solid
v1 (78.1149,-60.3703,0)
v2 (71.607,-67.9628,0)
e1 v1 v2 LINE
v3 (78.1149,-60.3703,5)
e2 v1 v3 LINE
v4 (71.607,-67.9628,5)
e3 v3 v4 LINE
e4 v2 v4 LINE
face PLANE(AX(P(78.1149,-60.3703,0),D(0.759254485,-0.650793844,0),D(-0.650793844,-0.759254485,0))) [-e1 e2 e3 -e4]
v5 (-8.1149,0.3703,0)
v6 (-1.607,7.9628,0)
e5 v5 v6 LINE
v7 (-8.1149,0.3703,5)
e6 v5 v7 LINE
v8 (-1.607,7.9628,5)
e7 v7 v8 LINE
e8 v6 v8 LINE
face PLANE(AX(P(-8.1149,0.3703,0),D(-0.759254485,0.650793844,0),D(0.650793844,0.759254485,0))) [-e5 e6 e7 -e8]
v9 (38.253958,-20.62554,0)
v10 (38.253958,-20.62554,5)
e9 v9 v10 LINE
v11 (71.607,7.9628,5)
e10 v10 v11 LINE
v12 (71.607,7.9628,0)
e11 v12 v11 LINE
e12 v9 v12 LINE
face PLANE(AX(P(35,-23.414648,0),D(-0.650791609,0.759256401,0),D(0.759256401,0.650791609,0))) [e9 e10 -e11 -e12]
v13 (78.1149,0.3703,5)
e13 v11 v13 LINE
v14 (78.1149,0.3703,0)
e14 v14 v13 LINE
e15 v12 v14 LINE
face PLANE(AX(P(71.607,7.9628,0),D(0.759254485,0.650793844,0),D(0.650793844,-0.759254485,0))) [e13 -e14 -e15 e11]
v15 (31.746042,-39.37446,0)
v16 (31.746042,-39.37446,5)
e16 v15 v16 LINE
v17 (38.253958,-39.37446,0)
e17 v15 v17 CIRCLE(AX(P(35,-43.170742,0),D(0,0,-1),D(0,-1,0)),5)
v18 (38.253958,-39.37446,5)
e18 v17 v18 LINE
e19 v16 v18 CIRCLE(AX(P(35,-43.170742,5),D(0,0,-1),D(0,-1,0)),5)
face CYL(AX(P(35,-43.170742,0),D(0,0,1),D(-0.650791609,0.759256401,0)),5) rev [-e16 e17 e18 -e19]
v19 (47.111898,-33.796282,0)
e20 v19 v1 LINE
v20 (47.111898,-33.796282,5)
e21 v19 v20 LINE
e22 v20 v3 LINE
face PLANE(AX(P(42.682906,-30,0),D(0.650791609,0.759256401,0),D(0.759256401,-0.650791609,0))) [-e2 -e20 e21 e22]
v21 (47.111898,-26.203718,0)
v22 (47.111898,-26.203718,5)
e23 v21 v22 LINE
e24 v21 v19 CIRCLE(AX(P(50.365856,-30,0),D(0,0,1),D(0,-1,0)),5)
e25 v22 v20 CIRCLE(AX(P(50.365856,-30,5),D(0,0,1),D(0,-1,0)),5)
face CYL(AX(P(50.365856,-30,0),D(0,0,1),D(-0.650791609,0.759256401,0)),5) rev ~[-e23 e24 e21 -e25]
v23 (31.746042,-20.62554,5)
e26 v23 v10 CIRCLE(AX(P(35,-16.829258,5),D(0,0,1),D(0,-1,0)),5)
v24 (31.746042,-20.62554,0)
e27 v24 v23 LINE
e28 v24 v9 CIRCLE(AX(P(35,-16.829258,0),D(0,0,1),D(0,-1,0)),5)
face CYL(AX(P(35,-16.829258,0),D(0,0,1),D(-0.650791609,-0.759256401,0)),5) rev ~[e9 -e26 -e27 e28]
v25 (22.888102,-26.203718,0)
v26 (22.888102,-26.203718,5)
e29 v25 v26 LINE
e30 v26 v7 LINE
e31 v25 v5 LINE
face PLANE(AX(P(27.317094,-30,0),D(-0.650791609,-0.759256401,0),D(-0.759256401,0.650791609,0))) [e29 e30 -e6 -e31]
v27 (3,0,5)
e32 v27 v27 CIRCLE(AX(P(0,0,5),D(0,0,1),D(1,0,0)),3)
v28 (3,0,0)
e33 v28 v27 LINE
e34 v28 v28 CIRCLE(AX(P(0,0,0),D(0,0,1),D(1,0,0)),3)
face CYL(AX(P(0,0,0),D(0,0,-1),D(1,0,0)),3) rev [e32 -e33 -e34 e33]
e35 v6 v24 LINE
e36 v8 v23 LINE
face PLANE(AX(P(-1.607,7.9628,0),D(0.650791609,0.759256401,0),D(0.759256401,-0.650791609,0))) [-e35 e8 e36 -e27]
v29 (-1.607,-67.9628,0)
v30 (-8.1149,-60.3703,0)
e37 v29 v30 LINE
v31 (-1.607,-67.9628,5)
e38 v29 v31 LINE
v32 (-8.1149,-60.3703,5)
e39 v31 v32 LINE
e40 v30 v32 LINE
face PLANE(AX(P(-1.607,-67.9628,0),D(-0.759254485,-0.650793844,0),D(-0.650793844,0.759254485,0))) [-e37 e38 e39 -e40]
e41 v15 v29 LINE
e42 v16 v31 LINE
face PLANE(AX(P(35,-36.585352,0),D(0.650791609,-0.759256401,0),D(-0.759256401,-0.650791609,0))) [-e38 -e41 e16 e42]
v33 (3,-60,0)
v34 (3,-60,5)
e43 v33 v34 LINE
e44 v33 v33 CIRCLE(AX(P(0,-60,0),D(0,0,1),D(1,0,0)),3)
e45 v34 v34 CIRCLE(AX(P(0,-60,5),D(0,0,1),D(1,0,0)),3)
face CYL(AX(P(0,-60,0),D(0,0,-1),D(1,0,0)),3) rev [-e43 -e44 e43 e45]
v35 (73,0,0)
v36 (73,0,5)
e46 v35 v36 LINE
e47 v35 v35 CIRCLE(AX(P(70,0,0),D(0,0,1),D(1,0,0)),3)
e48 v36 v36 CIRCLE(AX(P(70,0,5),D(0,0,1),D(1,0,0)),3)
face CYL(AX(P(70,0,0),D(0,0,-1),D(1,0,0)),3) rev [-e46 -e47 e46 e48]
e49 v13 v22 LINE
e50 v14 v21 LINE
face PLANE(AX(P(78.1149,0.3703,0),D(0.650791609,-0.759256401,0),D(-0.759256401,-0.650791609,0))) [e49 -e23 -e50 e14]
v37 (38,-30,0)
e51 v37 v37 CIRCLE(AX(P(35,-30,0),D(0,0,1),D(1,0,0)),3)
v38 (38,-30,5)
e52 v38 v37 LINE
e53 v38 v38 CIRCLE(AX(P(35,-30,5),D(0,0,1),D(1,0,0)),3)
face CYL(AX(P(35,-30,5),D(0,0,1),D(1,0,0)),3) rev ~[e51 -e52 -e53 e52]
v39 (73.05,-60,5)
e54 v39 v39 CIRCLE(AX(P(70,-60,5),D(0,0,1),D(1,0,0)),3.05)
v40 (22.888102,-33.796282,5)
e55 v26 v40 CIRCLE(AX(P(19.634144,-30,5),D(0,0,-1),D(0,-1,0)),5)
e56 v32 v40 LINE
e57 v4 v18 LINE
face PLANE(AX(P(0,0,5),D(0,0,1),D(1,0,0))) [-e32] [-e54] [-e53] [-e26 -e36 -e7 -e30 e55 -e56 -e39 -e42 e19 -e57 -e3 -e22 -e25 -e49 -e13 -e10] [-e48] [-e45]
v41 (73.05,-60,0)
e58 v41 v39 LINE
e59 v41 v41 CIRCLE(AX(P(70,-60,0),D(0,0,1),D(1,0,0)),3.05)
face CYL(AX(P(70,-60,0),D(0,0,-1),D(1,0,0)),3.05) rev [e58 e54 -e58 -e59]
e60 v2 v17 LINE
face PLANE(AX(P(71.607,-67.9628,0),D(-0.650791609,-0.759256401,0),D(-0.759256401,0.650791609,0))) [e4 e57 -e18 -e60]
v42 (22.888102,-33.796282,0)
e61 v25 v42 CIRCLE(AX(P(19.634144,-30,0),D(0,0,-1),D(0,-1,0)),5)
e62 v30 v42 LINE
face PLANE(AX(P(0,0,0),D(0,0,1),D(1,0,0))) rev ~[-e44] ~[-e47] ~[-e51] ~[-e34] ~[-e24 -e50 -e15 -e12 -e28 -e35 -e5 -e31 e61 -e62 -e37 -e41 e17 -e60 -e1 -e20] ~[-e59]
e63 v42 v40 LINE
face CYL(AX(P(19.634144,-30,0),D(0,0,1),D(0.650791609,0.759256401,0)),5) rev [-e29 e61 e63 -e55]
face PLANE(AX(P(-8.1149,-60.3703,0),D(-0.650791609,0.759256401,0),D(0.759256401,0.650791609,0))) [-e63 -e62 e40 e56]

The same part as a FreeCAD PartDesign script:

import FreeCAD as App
import Part
import Sketcher

V = App.Vector


def edges_at(feature, points):
    """Names of the edges that pass closest to the given points."""
    edges = feature.Shape.Edges
    near = lambda p: min(range(len(edges)), key=lambda i: edges[i].distToShape(Part.Vertex(*p))[0])
    return sorted({f"Edge{near(p) + 1}" for p in points})


def add_polygon(sketch, points):
    """Adds a closed chain of lines whose ends are joined by coincident constraints."""
    first, n = sketch.GeometryCount, len(points)
    for a, b in zip(points, points[1:] + points[:1]):
        sketch.addGeometry(Part.LineSegment(App.Vector(*a, 0), App.Vector(*b, 0)), False)
    for i in range(n):
        sketch.addConstraint(Sketcher.Constraint("Coincident", first + i, 2, first + (i + 1) % n, 1))

doc = App.newDocument("Part")
body = doc.addObject("PartDesign::Body", "Body")

# Sketch on XY plane
sketch1 = doc.addObject("Sketcher::SketchObject", "Sketch")
body.addObject(sketch1)
sketch1.AttachmentSupport = (doc.XY_Plane, [""])
sketch1.MapMode = "FlatFace"
add_polygon(sketch1, [(35, -23.4), (-1.6, 8), (-8.1, 0.4), (27.3, -30), (-8.1, -60.4), (-1.6, -68), (35, -36.6), (71.6, -68), (78.1, -60.4), (42.7, -30), (78.1, 0.4), (71.6, 8)])  # lines 0-11
sketch1.addGeometry(Part.Circle(V(0, 0, 0), V(0, 0, 1), 3), False)  # 12
sketch1.addGeometry(Part.Circle(V(70, 0, 0), V(0, 0, 1), 3), False)  # 13
sketch1.addGeometry(Part.Circle(V(70, -60, 0), V(0, 0, 1), 3), False)  # 14
sketch1.addGeometry(Part.Circle(V(0, -60, 0), V(0, 0, 1), 3), False)  # 15
sketch1.addConstraint([
    Sketcher.Constraint("Coincident", 12, 3, -1, 1),
    Sketcher.Constraint("Equal", 12, 13),
    Sketcher.Constraint("Equal", 13, 15),
    Sketcher.Constraint("PointOnObject", 13, 3, -1),
    Sketcher.Constraint("PointOnObject", 15, 3, -2),
    Sketcher.Constraint("Perpendicular", 0, 1),
    Sketcher.Constraint("Perpendicular", 1, 2),
    Sketcher.Constraint("Perpendicular", 3, 4),
    Sketcher.Constraint("Perpendicular", 4, 5),
    Sketcher.Constraint("Parallel", 2, 6),
    Sketcher.Constraint("Perpendicular", 6, 7),
    Sketcher.Constraint("Perpendicular", 7, 8),
    Sketcher.Constraint("Parallel", 5, 9),
    Sketcher.Constraint("Perpendicular", 9, 10),
    Sketcher.Constraint("Perpendicular", 10, 11),
    Sketcher.Constraint("Horizontal", 14, 3, 15, 3),
    Sketcher.Constraint("Horizontal", 4, 2, 6, 2),
    Sketcher.Constraint("Horizontal", 3, 2, 7, 2),
    Sketcher.Constraint("Horizontal", 2, 2, 8, 2),
    Sketcher.Constraint("Horizontal", 1, 2, 9, 2),
    Sketcher.Constraint("Horizontal", 0, 2, 10, 2),
    Sketcher.Constraint("Vertical", 13, 3, 14, 3),
    Sketcher.Constraint("Vertical", 1, 2, 3, 2),
    Sketcher.Constraint("Vertical", 0, 2, 4, 2),
    Sketcher.Constraint("Vertical", 7, 2, 9, 2),
    Sketcher.Constraint("Distance", 1, 10.0),
    Sketcher.Constraint("Diameter", 12, 6.0),
    Sketcher.Constraint("Diameter", 14, 6.1),
    Sketcher.Constraint("DistanceX", -1, 1, 13, 3, 70.0),
    Sketcher.Constraint("DistanceY", 14, 3, -1, 1, 60.0),
    Sketcher.Constraint("DistanceY", 2, 2, -1, 1, 30.0),
    Sketcher.Constraint("DistanceX", -1, 1, 5, 2, 35.0),
    Sketcher.Constraint("DistanceX", 2, 2, 6, 2, 44.29),
    Sketcher.Constraint("DistanceX", 0, 2, -1, 1, 1.607),
    Sketcher.Constraint("DistanceX", 1, 2, -1, 1, 8.115),
])
pad1 = doc.addObject("PartDesign::Pad", "Pad")
body.addObject(pad1)
pad1.Profile = sketch1
pad1.Length = 5

# Sketch on XY plane
sketch2 = doc.addObject("Sketcher::SketchObject", "Sketch001")
body.addObject(sketch2)
sketch2.AttachmentSupport = (doc.XY_Plane, [""])
sketch2.MapMode = "FlatFace"
sketch2.AttachmentOffset = App.Placement(V(0, 0, 5), App.Rotation())
sketch2.addGeometry(Part.Circle(V(35, -30, 0), V(0, 0, 1), 3), False)
sketch2.addConstraint([
    Sketcher.Constraint("Diameter", 0, 6.0),
    Sketcher.Constraint("DistanceX", -1, 1, 0, 3, 35.0),
    Sketcher.Constraint("DistanceY", 0, 3, -1, 1, 30.0),
])
pocket1 = doc.addObject("PartDesign::Pocket", "Pocket")
body.addObject(pocket1)
pocket1.Profile = sketch2
pocket1.Type = "ThroughAll"
doc.recompute()

fillet = doc.addObject("PartDesign::Fillet", "Fillet")
body.addObject(fillet)
fillet.Base = (pocket1, edges_at(pocket1, [
    (35, -23.415, 2.5),
    (27.317, -30, 2.5),
    (35, -36.585, 2.5),
    (42.683, -30, 2.5),
]))
fillet.Radius = 5

doc.recompute()
